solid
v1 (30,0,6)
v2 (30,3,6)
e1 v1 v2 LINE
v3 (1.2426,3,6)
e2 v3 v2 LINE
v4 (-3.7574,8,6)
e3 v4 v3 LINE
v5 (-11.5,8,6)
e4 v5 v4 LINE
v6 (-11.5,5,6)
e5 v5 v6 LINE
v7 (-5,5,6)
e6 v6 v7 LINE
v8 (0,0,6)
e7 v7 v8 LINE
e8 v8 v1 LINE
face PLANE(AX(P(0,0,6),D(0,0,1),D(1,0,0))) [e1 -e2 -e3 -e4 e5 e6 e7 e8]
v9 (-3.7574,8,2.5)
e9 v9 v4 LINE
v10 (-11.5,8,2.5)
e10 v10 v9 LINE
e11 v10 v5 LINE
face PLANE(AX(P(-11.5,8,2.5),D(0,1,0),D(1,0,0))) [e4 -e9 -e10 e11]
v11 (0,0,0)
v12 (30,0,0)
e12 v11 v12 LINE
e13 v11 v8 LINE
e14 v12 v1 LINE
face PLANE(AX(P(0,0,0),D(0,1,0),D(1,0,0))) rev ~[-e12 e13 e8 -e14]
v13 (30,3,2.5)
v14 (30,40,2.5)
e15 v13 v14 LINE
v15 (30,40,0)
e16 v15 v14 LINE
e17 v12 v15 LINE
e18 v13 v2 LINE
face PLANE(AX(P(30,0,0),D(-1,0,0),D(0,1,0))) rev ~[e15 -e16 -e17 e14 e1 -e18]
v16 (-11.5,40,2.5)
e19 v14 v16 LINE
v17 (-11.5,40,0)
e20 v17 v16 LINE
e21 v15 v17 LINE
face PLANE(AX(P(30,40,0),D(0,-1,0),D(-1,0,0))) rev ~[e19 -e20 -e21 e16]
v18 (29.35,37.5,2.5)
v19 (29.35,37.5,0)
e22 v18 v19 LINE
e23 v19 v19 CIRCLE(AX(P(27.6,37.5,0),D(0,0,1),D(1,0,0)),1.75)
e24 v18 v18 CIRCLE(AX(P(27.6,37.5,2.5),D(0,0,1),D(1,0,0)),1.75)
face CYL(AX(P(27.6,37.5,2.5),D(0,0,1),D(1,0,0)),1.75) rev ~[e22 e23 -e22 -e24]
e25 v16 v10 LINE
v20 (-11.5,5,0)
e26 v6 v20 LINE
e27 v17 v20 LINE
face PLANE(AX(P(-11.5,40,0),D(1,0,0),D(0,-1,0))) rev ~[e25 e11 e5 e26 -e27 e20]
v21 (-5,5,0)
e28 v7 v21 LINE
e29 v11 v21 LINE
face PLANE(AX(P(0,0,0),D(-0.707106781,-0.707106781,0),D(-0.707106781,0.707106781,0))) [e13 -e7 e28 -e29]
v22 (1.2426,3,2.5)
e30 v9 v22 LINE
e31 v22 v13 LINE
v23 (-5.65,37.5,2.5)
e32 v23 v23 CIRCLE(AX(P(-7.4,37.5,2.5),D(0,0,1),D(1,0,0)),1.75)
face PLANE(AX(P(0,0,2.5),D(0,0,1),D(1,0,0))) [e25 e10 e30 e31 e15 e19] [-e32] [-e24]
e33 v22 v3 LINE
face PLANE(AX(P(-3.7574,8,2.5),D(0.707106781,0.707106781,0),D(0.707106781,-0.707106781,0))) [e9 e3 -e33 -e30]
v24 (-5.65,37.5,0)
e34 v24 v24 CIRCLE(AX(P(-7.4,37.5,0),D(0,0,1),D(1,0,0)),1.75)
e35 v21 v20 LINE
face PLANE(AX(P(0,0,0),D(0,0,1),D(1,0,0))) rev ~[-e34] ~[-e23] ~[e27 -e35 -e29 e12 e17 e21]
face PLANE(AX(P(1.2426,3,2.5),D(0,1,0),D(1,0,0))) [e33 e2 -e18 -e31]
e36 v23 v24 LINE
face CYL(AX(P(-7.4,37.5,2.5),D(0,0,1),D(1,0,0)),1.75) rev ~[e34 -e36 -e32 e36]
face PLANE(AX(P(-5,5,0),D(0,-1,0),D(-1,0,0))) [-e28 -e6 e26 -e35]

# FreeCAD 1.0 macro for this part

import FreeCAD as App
import Part
import Sketcher

V = App.Vector
Q = App.Units.Quantity


def add_polygon(sketch, points):
    """Adds a closed chain of lines whose ends are joined by coincident constraints."""
    first, n = sketch.GeometryCount, len(points)
    for a, b in zip(points, points[1:] + points[:1]):
        sketch.addGeometry(Part.LineSegment(App.Vector(*a, 0), App.Vector(*b, 0)), False)
    for i in range(n):
        sketch.addConstraint(Sketcher.Constraint("Coincident", first + i, 2, first + (i + 1) % n, 1))

doc = App.newDocument("Part")
body = doc.addObject("PartDesign::Body", "Body")

sketch1 = doc.addObject("Sketcher::SketchObject", "Sketch")
body.addObject(sketch1)
sketch1.AttachmentSupport = (doc.XY_Plane, [""])
sketch1.MapMode = "FlatFace"
add_polygon(sketch1, [(-5, 5), (0, 0), (30, 0), (30, 40), (-12, 40), (-12, 5)])
sketch1.addConstraint(Sketcher.Constraint("Horizontal", 1))
sketch1.addConstraint(Sketcher.Constraint("Vertical", 2))
sketch1.addConstraint(Sketcher.Constraint("Horizontal", 3))
sketch1.addConstraint(Sketcher.Constraint("Vertical", 4))
sketch1.addConstraint(Sketcher.Constraint("Horizontal", 5))
sketch1.addConstraint(Sketcher.Constraint("Coincident", 0, 2, -1, 1))
sketch1.addConstraint(Sketcher.Constraint("DistanceX", 1, 1, 1, 2, Q("30 mm")))
sketch1.addConstraint(Sketcher.Constraint("DistanceY", 2, 1, 2, 2, Q("40 mm")))
sketch1.addConstraint(Sketcher.Constraint("DistanceX", 5, 1, 5, 2, Q("6.5 mm")))
sketch1.addConstraint(Sketcher.Constraint("DistanceY", -1, 1, 4, 2, Q("5 mm")))
sketch1.addConstraint(Sketcher.Constraint("DistanceX", 5, 2, -1, 1, Q("5 mm")))
pad1 = doc.addObject("PartDesign::Pad", "Pad")
body.addObject(pad1)
pad1.Profile = sketch1
pad1.Length = 2.5

sketch2 = doc.addObject("Sketcher::SketchObject", "Sketch001")
body.addObject(sketch2)
sketch2.AttachmentSupport = (doc.XY_Plane, [""])
sketch2.MapMode = "FlatFace"
sketch2.AttachmentOffset = App.Placement(V(0, 0, 2.5), App.Rotation())
add_polygon(sketch2, [(-5, 5), (0, 0), (30, 0), (30, 3), (1.2, 3), (-3.8, 8), (-11.5, 8), (-11.5, 5)])
sketch2.addConstraint(Sketcher.Constraint("Horizontal", 1))
sketch2.addConstraint(Sketcher.Constraint("Vertical", 2))
sketch2.addConstraint(Sketcher.Constraint("Horizontal", 3))
sketch2.addConstraint(Sketcher.Constraint("Horizontal", 5))
sketch2.addConstraint(Sketcher.Constraint("Vertical", 6))
sketch2.addConstraint(Sketcher.Constraint("Horizontal", 7))
sketch2.addConstraint(Sketcher.Constraint("Coincident", 0, 2, -1, 1))
sketch2.addConstraint(Sketcher.Constraint("Parallel", 0, 4))
sketch2.addConstraint(Sketcher.Constraint("Equal", 2, 6))
sketch2.addConstraint(Sketcher.Constraint("DistanceY", 2, 1, 2, 2, Q("3 mm")))
sketch2.addConstraint(Sketcher.Constraint("DistanceX", 1, 1, 1, 2, Q("30 mm")))
sketch2.addConstraint(Sketcher.Constraint("Angle", 0, Q("-45 deg")))
sketch2.addConstraint(Sketcher.Constraint("DistanceX", 7, 1, 7, 2, Q("6.5 mm")))
sketch2.addConstraint(Sketcher.Constraint("DistanceY", -1, 1, 4, 2, Q("8 mm")))
sketch2.addConstraint(Sketcher.Constraint("DistanceX", 3, 2, 3, 1, Q("28.7574 mm")))
pad2 = doc.addObject("PartDesign::Pad", "Pad001")
body.addObject(pad2)
pad2.Profile = sketch2
pad2.Length = 3.5

sketch3 = doc.addObject("Sketcher::SketchObject", "Sketch002")
body.addObject(sketch3)
sketch3.AttachmentSupport = (doc.XY_Plane, [""])
sketch3.MapMode = "FlatFace"
sketch3.AttachmentOffset = App.Placement(V(0, 0, 2.5), App.Rotation())
sketch3.addGeometry(Part.Circle(V(-7.4, 37.5, 0), V(0, 0, 1), 1.8), False)
sketch3.addGeometry(Part.Circle(V(27.6, 37.5, 0), V(0, 0, 1), 1.8), False)
sketch3.addConstraint(Sketcher.Constraint("Equal", 0, 1))
sketch3.addConstraint(Sketcher.Constraint("Horizontal", 0, 3, 1, 3))
sketch3.addConstraint(Sketcher.Constraint("Diameter", 0, Q("3.5 mm")))
sketch3.addConstraint(Sketcher.Constraint("DistanceX", 0, 3, 1, 3, Q("35 mm")))
sketch3.addConstraint(Sketcher.Constraint("DistanceX", 0, 3, -1, 1, Q("7.4 mm")))
sketch3.addConstraint(Sketcher.Constraint("DistanceY", -1, 1, 0, 3, Q("37.5 mm")))
pocket1 = doc.addObject("PartDesign::Pocket", "Pocket")
body.addObject(pocket1)
pocket1.Profile = sketch3
pocket1.Type = "UpToFirst"

doc.recompute()
